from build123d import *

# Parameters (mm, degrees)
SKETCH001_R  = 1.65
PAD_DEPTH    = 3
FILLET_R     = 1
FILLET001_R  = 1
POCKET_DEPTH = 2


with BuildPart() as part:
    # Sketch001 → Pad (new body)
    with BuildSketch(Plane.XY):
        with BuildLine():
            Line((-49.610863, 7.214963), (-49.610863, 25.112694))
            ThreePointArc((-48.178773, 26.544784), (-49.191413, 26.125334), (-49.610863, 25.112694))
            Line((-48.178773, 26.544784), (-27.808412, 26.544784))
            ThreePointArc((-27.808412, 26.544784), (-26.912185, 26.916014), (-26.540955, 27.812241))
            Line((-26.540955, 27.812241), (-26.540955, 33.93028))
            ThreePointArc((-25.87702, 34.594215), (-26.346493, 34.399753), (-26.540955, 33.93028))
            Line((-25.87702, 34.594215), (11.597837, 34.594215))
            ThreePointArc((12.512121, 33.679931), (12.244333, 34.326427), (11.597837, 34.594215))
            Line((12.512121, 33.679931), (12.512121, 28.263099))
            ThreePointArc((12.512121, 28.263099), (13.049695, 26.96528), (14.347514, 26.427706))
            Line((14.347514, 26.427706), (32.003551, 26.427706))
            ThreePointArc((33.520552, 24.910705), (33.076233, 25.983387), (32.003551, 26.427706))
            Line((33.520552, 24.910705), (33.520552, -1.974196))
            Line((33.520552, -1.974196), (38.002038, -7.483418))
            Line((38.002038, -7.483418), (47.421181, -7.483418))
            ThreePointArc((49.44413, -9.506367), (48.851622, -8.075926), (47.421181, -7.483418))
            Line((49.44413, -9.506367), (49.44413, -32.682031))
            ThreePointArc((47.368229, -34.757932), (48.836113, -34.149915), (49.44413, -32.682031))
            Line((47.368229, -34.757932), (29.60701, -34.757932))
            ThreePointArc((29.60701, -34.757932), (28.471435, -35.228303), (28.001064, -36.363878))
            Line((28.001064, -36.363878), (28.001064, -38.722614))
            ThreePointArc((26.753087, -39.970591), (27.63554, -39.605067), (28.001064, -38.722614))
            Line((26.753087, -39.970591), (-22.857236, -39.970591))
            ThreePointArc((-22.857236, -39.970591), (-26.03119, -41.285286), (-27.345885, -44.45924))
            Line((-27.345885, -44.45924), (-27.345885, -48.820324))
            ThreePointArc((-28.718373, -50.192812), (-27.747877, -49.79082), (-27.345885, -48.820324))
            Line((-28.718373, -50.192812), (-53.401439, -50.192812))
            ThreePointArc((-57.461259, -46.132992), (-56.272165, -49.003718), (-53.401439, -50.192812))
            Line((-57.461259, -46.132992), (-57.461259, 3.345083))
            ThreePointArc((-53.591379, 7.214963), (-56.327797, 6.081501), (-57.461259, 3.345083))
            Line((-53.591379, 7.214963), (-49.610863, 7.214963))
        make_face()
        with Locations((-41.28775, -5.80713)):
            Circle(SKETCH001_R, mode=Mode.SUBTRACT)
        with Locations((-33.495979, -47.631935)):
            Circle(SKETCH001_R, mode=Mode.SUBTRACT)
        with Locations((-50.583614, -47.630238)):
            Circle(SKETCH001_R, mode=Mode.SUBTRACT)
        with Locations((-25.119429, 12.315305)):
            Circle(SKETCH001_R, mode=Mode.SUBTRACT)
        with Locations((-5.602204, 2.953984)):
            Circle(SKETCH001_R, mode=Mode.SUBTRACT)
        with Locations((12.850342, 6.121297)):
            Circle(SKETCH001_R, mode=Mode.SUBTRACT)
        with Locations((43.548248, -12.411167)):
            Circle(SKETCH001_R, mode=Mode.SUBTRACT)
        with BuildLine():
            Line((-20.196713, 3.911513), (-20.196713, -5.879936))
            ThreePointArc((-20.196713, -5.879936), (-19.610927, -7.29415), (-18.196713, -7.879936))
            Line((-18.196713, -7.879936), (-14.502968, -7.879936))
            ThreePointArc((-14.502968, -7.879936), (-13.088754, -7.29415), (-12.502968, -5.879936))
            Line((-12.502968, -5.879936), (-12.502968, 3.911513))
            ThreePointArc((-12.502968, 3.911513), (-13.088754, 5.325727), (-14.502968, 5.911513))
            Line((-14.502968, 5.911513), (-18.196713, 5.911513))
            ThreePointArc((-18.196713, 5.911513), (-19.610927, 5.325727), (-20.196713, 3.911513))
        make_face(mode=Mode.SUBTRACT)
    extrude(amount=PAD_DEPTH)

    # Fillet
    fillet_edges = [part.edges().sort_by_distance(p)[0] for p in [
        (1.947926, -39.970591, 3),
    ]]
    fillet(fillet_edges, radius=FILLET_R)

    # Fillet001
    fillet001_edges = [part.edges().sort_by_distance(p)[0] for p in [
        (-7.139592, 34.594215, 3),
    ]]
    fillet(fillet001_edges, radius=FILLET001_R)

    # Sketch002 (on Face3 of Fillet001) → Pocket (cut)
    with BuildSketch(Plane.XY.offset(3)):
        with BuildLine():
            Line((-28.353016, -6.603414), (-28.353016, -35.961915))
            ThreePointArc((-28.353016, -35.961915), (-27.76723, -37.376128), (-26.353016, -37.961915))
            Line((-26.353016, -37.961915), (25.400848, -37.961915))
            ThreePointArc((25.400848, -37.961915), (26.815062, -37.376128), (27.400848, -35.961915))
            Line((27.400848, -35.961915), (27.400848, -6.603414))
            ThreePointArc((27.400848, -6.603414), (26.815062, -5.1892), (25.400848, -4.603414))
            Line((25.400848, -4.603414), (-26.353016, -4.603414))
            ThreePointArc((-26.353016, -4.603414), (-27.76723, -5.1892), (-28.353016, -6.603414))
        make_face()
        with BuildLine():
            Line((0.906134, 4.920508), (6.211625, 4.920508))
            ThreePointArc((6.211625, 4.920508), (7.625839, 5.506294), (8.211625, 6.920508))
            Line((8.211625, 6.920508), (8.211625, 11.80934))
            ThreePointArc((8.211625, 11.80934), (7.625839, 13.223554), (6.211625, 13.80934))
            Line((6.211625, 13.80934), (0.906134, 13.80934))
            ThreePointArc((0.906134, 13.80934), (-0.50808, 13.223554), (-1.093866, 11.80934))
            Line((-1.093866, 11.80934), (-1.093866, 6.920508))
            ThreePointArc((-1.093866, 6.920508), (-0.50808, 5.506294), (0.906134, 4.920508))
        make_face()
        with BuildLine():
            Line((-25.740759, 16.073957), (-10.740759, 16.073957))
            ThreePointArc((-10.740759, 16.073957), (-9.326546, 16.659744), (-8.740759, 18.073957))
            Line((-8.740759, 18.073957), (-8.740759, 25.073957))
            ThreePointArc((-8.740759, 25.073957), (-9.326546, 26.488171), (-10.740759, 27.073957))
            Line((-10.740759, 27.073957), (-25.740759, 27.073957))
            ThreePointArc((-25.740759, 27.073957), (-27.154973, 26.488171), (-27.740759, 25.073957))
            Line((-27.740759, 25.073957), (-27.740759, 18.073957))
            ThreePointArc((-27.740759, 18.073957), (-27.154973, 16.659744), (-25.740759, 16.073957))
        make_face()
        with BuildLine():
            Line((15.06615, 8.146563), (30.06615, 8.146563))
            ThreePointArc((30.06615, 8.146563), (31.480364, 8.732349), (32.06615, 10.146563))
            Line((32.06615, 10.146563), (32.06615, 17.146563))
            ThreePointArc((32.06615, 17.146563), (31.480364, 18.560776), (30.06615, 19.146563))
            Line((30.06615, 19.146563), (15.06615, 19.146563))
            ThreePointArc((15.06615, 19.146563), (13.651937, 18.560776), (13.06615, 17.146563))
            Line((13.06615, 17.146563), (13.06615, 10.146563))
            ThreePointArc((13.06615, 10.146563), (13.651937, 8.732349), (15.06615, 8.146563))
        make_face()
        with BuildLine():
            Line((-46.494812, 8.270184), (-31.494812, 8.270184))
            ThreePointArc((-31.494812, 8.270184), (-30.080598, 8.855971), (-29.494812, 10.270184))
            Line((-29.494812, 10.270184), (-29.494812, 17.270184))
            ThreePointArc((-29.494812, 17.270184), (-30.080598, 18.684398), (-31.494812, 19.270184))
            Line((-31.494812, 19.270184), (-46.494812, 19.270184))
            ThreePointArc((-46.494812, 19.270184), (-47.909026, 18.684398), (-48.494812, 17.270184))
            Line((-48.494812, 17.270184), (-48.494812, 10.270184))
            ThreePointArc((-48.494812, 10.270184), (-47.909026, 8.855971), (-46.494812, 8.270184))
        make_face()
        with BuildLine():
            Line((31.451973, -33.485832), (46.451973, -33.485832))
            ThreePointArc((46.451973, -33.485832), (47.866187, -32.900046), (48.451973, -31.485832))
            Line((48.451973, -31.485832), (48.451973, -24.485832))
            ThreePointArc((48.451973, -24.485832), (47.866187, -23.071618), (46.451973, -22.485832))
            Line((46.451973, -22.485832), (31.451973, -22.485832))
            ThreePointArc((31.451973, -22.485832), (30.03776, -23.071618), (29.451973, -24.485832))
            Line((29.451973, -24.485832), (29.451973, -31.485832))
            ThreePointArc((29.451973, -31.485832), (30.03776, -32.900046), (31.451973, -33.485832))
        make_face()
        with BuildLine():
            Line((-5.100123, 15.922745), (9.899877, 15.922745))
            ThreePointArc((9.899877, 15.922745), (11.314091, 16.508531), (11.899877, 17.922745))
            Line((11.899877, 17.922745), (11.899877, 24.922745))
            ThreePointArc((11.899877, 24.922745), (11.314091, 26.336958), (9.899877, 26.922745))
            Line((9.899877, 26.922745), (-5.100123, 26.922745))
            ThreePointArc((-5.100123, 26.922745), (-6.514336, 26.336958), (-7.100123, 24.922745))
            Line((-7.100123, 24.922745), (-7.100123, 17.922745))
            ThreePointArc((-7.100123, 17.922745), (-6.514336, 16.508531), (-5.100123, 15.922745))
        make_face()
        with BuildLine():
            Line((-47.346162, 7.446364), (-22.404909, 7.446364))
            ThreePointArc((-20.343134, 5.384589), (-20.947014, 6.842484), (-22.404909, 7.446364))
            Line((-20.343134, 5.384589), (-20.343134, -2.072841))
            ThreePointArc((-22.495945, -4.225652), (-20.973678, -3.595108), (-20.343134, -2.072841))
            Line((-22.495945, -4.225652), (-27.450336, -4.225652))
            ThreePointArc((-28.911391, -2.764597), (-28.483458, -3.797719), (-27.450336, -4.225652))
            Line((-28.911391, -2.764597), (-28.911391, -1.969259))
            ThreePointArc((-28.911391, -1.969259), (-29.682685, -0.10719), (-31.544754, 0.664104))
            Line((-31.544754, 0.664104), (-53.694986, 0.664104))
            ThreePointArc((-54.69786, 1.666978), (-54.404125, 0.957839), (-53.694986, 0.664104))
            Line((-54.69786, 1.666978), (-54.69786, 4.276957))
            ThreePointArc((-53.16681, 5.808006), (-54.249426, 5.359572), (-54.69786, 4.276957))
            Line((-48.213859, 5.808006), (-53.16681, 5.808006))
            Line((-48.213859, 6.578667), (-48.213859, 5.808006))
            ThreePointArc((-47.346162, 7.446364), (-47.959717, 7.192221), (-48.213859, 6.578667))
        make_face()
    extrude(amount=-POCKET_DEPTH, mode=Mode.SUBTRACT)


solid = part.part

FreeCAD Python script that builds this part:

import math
import FreeCAD as App
import Part
import Sketcher
Q = App.Units.Quantity


def edges_at(feature, points):
    """Names of the edges that pass closest to the given points."""
    edges = feature.Shape.Edges
    near = lambda p: min(range(len(edges)), key=lambda i: edges[i].distToShape(Part.Vertex(*p))[0])
    return sorted({f"Edge{near(p) + 1}" for p in points})

doc = App.newDocument("Part")
body = doc.addObject("PartDesign::Body", "Body")

# Sketch on XY plane
sketch1 = body.newObject("Sketcher::SketchObject", "Sketch")
sketch1.AttachmentSupport = (doc.getObject("XY_Plane"), [""])
sketch1.MapMode = "FlatFace"
sketch1.addGeometry([
    Part.LineSegment(App.Vector(-49.610863, 25.112694, 0), App.Vector(-49.610863, 7.214963, 0)),  # 0
    Part.LineSegment(App.Vector(-49.610863, 7.214963, 0), App.Vector(-53.591379, 7.214963, 0)),  # 1
    Part.ArcOfCircle(Part.Circle(App.Vector(-53.591378, 3.345082, 0), App.Vector(0, 0, 1), 3.869881), math.radians(90.00002), math.radians(179.99998)),  # 2
    Part.LineSegment(App.Vector(-57.461259, 3.345083, 0), App.Vector(-57.461259, -46.132992, 0)),  # 3
    Part.ArcOfCircle(Part.Circle(App.Vector(-53.401438, -46.132991, 0), App.Vector(0, 0, 1), 4.059821), math.radians(-179.999988), math.radians(-90.000012)),  # 4
    Part.LineSegment(App.Vector(-53.401439, -50.192812, 0), App.Vector(-28.718373, -50.192812, 0)),  # 5
    Part.ArcOfCircle(Part.Circle(App.Vector(-28.718372, -48.820325, 0), App.Vector(0, 0, 1), 1.372487), math.radians(-90.000061), math.radians(0.000061)),  # 6
    Part.LineSegment(App.Vector(-27.345885, -48.820324, 0), App.Vector(-27.345885, -44.45924, 0)),  # 7
    Part.ArcOfCircle(Part.Circle(App.Vector(-22.857236, -44.45924, 0), App.Vector(0, 0, 1), 4.488649), math.radians(90.000006), math.radians(179.999994)),  # 8
    Part.LineSegment(App.Vector(-22.857236, -39.970591, 0), App.Vector(26.753087, -39.970591, 0)),  # 9
    Part.ArcOfCircle(Part.Circle(App.Vector(26.753087, -38.722614, 0), App.Vector(0, 0, 1), 1.247977), math.radians(-90), math.radians(0)),  # 10
    Part.LineSegment(App.Vector(28.001064, -38.722614, 0), App.Vector(28.001064, -36.363878, 0)),  # 11
    Part.ArcOfCircle(Part.Circle(App.Vector(29.607011, -36.363879, 0), App.Vector(0, 0, 1), 1.605947), math.radians(90.000037), math.radians(179.999963)),  # 12
    Part.LineSegment(App.Vector(29.60701, -34.757932, 0), App.Vector(47.368229, -34.757932, 0)),  # 13
    Part.ArcOfCircle(Part.Circle(App.Vector(47.36823, -32.682032, 0), App.Vector(0, 0, 1), 2.0759), math.radians(-90.000031), math.radians(0.000031)),  # 14
    Part.LineSegment(App.Vector(49.44413, -32.682031, 0), App.Vector(49.44413, -9.506367, 0)),  # 15
    Part.ArcOfCircle(Part.Circle(App.Vector(47.421181, -9.506367, 0), App.Vector(0, 0, 1), 2.022949), math.radians(-0.000004), math.radians(90.000004)),  # 16
    Part.LineSegment(App.Vector(47.421181, -7.483418, 0), App.Vector(38.002038, -7.483418, 0)),  # 17
    Part.LineSegment(App.Vector(38.002038, -7.483418, 0), App.Vector(33.520552, -1.974196, 0)),  # 18
    Part.LineSegment(App.Vector(33.520552, -1.974196, 0), App.Vector(33.520552, 24.910705, 0)),  # 19
    Part.ArcOfCircle(Part.Circle(App.Vector(32.003552, 24.910706, 0), App.Vector(0, 0, 1), 1.517), math.radians(-0.000039), math.radians(90.000039)),  # 20
    Part.LineSegment(App.Vector(32.003551, 26.427706, 0), App.Vector(14.347514, 26.427706, 0)),  # 21
    Part.ArcOfCircle(Part.Circle(App.Vector(14.347513, 28.263098, 0), App.Vector(0, 0, 1), 1.835392), math.radians(179.999983), math.radians(270.000017)),  # 22
    Part.LineSegment(App.Vector(12.512121, 28.263099, 0), App.Vector(12.512121, 33.679931, 0)),  # 23
    Part.ArcOfCircle(Part.Circle(App.Vector(11.597836, 33.67993, 0), App.Vector(0, 0, 1), 0.914285), math.radians(0.000089), math.radians(89.999911)),  # 24
    Part.LineSegment(App.Vector(11.597837, 34.594215, 0), App.Vector(-25.87702, 34.594215, 0)),  # 25
    Part.ArcOfCircle(Part.Circle(App.Vector(-25.87702, 33.93028, 0), App.Vector(0, 0, 1), 0.663935), math.radians(89.999983), math.radians(180.000017)),  # 26
    Part.LineSegment(App.Vector(-26.540955, 33.93028, 0), App.Vector(-26.540955, 27.812241, 0)),  # 27
    Part.ArcOfCircle(Part.Circle(App.Vector(-27.808414, 27.812243, 0), App.Vector(0, 0, 1), 1.267459), math.radians(-89.999932), math.radians(-0.000068)),  # 28
    Part.LineSegment(App.Vector(-27.808412, 26.544784, 0), App.Vector(-48.178773, 26.544784, 0)),  # 29
    Part.ArcOfCircle(Part.Circle(App.Vector(-48.178771, 25.112692, 0), App.Vector(0, 0, 1), 1.432092), math.radians(90.000075), math.radians(179.999925)),  # 30
    Part.Circle(App.Vector(-33.495979, -47.631935, 0), App.Vector(0, 0, 1), 1.65),  # 31
    Part.Circle(App.Vector(-50.583614, -47.630238, 0), App.Vector(0, 0, 1), 1.65),  # 32
    Part.Circle(App.Vector(43.548248, -12.411167, 0), App.Vector(0, 0, 1), 1.65),  # 33
    Part.Circle(App.Vector(12.850342, 6.121297, 0), App.Vector(0, 0, 1), 1.65),  # 34
    Part.Circle(App.Vector(-41.28775, -5.80713, 0), App.Vector(0, 0, 1), 1.65),  # 35
    Part.Circle(App.Vector(-5.602204, 2.953984, 0), App.Vector(0, 0, 1), 1.65),  # 36
    Part.ArcOfCircle(Part.Circle(App.Vector(-18.196714, 3.911514, 0), App.Vector(0, 0, 1), 1.999999), math.radians(89.999957), math.radians(180.000043)),  # 37
    Part.LineSegment(App.Vector(-18.196713, 5.911513, 0), App.Vector(-14.502968, 5.911513, 0)),  # 38
    Part.ArcOfCircle(Part.Circle(App.Vector(-14.502967, 3.911514, 0), App.Vector(0, 0, 1), 1.999999), math.radians(-0.000043), math.radians(90.000043)),  # 39
    Part.LineSegment(App.Vector(-12.502968, 3.911513, 0), App.Vector(-12.502968, -5.879936, 0)),  # 40
    Part.ArcOfCircle(Part.Circle(App.Vector(-14.502967, -5.879937, 0), App.Vector(0, 0, 1), 1.999999), math.radians(-90.000043), math.radians(0.000043)),  # 41
    Part.LineSegment(App.Vector(-14.502968, -7.879936, 0), App.Vector(-18.196713, -7.879936, 0)),  # 42
    Part.ArcOfCircle(Part.Circle(App.Vector(-18.196714, -5.879937, 0), App.Vector(0, 0, 1), 1.999999), math.radians(179.999957), math.radians(270.000043)),  # 43
    Part.LineSegment(App.Vector(-20.196713, -5.879936, 0), App.Vector(-20.196713, 3.911513, 0)),  # 44
    Part.Circle(App.Vector(-25.119429, 12.315305, 0), App.Vector(0, 0, 1), 1.65),  # 45
], False)
sketch1.addConstraint([
    Sketcher.Constraint("Coincident", 0, 2, 1, 1),
    Sketcher.Constraint("Tangent", 1, 2, 2, 1),
    Sketcher.Constraint("Tangent", 2, 2, 3, 1),
    Sketcher.Constraint("Tangent", 3, 2, 4, 1),
    Sketcher.Constraint("Tangent", 4, 2, 5, 1),
    Sketcher.Constraint("Tangent", 5, 2, 6, 1),
    Sketcher.Constraint("Tangent", 6, 2, 7, 1),
    Sketcher.Constraint("Tangent", 7, 2, 8, 2),
    Sketcher.Constraint("Tangent", 8, 1, 9, 1),
    Sketcher.Constraint("Tangent", 9, 2, 10, 1),
    Sketcher.Constraint("Tangent", 10, 2, 11, 1),
    Sketcher.Constraint("Tangent", 11, 2, 12, 2),
    Sketcher.Constraint("Tangent", 12, 1, 13, 1),
    Sketcher.Constraint("Tangent", 13, 2, 14, 1),
    Sketcher.Constraint("Tangent", 14, 2, 15, 1),
    Sketcher.Constraint("Tangent", 15, 2, 16, 1),
    Sketcher.Constraint("Tangent", 16, 2, 17, 1),
    Sketcher.Constraint("Coincident", 17, 2, 18, 1),
    Sketcher.Constraint("Coincident", 18, 2, 19, 1),
    Sketcher.Constraint("Tangent", 19, 2, 20, 1),
    Sketcher.Constraint("Tangent", 20, 2, 21, 1),
    Sketcher.Constraint("Tangent", 21, 2, 22, 2),
    Sketcher.Constraint("Tangent", 22, 1, 23, 1),
    Sketcher.Constraint("Tangent", 23, 2, 24, 1),
    Sketcher.Constraint("Tangent", 24, 2, 25, 1),
    Sketcher.Constraint("Tangent", 25, 2, 26, 1),
    Sketcher.Constraint("Tangent", 26, 2, 27, 1),
    Sketcher.Constraint("Tangent", 27, 2, 28, 2),
    Sketcher.Constraint("Tangent", 28, 1, 29, 1),
    Sketcher.Constraint("Tangent", 29, 2, 30, 1),
    Sketcher.Constraint("Tangent", 30, 2, 0, 1),
    Sketcher.Constraint("Tangent", 37, 1, 38, 1),
    Sketcher.Constraint("Tangent", 38, 2, 39, 2),
    Sketcher.Constraint("Tangent", 39, 1, 40, 1),
    Sketcher.Constraint("Tangent", 40, 2, 41, 2),
    Sketcher.Constraint("Tangent", 41, 1, 42, 1),
    Sketcher.Constraint("Tangent", 42, 2, 43, 2),
    Sketcher.Constraint("Tangent", 43, 1, 44, 1),
    Sketcher.Constraint("Tangent", 44, 2, 37, 2),
    Sketcher.Constraint("Vertical", 0),
    Sketcher.Constraint("Horizontal", 1),
    Sketcher.Constraint("Vertical", 3),
    Sketcher.Constraint("Horizontal", 5),
    Sketcher.Constraint("Vertical", 7),
    Sketcher.Constraint("Horizontal", 9),
    Sketcher.Constraint("Vertical", 11),
    Sketcher.Constraint("Horizontal", 13),
    Sketcher.Constraint("Vertical", 15),
    Sketcher.Constraint("Horizontal", 17),
    Sketcher.Constraint("Vertical", 19),
    Sketcher.Constraint("Horizontal", 21),
    Sketcher.Constraint("Vertical", 23),
    Sketcher.Constraint("Horizontal", 25),
    Sketcher.Constraint("Vertical", 27),
    Sketcher.Constraint("Horizontal", 29),
    Sketcher.Constraint("Horizontal", 38),
    Sketcher.Constraint("Vertical", 40),
    Sketcher.Constraint("Horizontal", 42),
    Sketcher.Constraint("Vertical", 44),
    Sketcher.Constraint("Equal", 31, 32),
    Sketcher.Constraint("Equal", 32, 33),
    Sketcher.Constraint("Equal", 33, 34),
    Sketcher.Constraint("Equal", 34, 35),
    Sketcher.Constraint("Equal", 35, 36),
    Sketcher.Constraint("Equal", 37, 39),
    Sketcher.Constraint("Equal", 39, 41),
    Sketcher.Constraint("Equal", 41, 43),
    Sketcher.Constraint("Equal", 36, 45),
    Sketcher.Constraint("Radius", 37, Q("1.999999 mm")),
    Sketcher.Constraint("Diameter", 31, Q("3.3 mm")),
    Sketcher.Constraint("Radius", 20, Q("1.517 mm")),
    Sketcher.Constraint("Radius", 14, Q("2.0759 mm")),
    Sketcher.Constraint("Radius", 2, Q("3.869881 mm")),
    Sketcher.Constraint("Radius", 4, Q("4.059821 mm")),
    Sketcher.Constraint("Radius", 8, Q("4.488649 mm")),
    Sketcher.Constraint("Radius", 16, Q("2.022949 mm")),
    Sketcher.Constraint("Radius", 28, Q("1.267459 mm")),
    Sketcher.Constraint("Radius", 30, Q("1.432092 mm")),
    Sketcher.Constraint("DistanceY", 19, 1, 19, 2, Q("26.884901 mm")),
    Sketcher.Constraint("Radius", 6, Q("1.372487 mm")),
    Sketcher.Constraint("Radius", 10, Q("1.247977 mm")),
    Sketcher.Constraint("Radius", 12, Q("1.605947 mm")),
    Sketcher.Constraint("Radius", 22, Q("1.835392 mm")),
    Sketcher.Constraint("Radius", 24, Q("0.914285 mm")),
    Sketcher.Constraint("Radius", 26, Q("0.663935 mm")),
    Sketcher.Constraint("DistanceX", 13, 1, 13, 2, Q("17.761219 mm")),
    Sketcher.Constraint("DistanceX", 29, 2, 29, 1, Q("20.370361 mm")),
    Sketcher.Constraint("DistanceY", 0, 2, 0, 1, Q("17.897731 mm")),
    Sketcher.Constraint("DistanceY", 27, 2, 27, 1, Q("6.118039 mm")),
    Sketcher.Constraint("DistanceY", 40, 2, 40, 1, Q("9.791449 mm")),
    Sketcher.Constraint("DistanceY", -1, 1, 22, 3, Q("28.263098 mm")),
    Sketcher.Constraint("DistanceX", 1, 2, 1, 1, Q("3.980516 mm")),
    Sketcher.Constraint("DistanceX", 5, 1, 5, 2, Q("24.683066 mm")),
    Sketcher.Constraint("DistanceX", 9, 1, 9, 2, Q("49.610323 mm")),
    Sketcher.Constraint("DistanceX", 17, 2, 17, 1, Q("9.419143 mm")),
    Sketcher.Constraint("DistanceX", 21, 2, 21, 1, Q("17.656037 mm")),
    Sketcher.Constraint("DistanceX", 25, 2, 25, 1, Q("37.474857 mm")),
    Sketcher.Constraint("DistanceX", 38, 1, 38, 2, Q("3.693745 mm")),
    Sketcher.Constraint("DistanceY", 3, 2, 3, 1, Q("49.478075 mm")),
    Sketcher.Constraint("DistanceY", 7, 1, 7, 2, Q("4.361084 mm")),
    Sketcher.Constraint("DistanceY", 11, 1, 11, 2, Q("2.358736 mm")),
    Sketcher.Constraint("DistanceY", 15, 1, 15, 2, Q("23.175664 mm")),
    Sketcher.Constraint("DistanceY", 23, 1, 23, 2, Q("5.416832 mm")),
    Sketcher.Constraint("DistanceX", 4, 3, -1, 1, Q("53.401438 mm")),
    Sketcher.Constraint("DistanceX", 31, 3, -1, 1, Q("33.495979 mm")),
    Sketcher.Constraint("DistanceX", 35, 3, -1, 1, Q("41.28775 mm")),
    Sketcher.Constraint("DistanceY", 35, 3, -1, 1, Q("5.80713 mm")),
    Sketcher.Constraint("DistanceX", 45, 3, -1, 1, Q("25.119429 mm")),
    Sketcher.Constraint("DistanceX", 39, 1, -1, 1, Q("12.502968 mm")),
    Sketcher.Constraint("DistanceY", 31, 3, -1, 1, Q("47.631935 mm")),
    Sketcher.Constraint("DistanceX", 32, 3, -1, 1, Q("50.583614 mm")),
    Sketcher.Constraint("DistanceY", 32, 3, -1, 1, Q("47.630238 mm")),
    Sketcher.Constraint("DistanceX", -1, 1, 33, 3, Q("43.548248 mm")),
    Sketcher.Constraint("DistanceY", 33, 3, -1, 1, Q("12.411167 mm")),
    Sketcher.Constraint("DistanceX", -1, 1, 34, 3, Q("12.850342 mm")),
    Sketcher.Constraint("DistanceY", -1, 1, 34, 3, Q("6.121297 mm")),
    Sketcher.Constraint("DistanceX", 36, 3, -1, 1, Q("5.602204 mm")),
    Sketcher.Constraint("DistanceY", -1, 1, 36, 3, Q("2.953984 mm")),
    Sketcher.Constraint("DistanceY", -1, 1, 37, 3, Q("3.911514 mm")),
    Sketcher.Constraint("DistanceY", -1, 1, 45, 3, Q("12.315305 mm")),
])
pad1 = body.newObject("PartDesign::Pad", "Pad")
pad1.Profile = sketch1
pad1.Length = 3
doc.recompute()

fillet = body.newObject("PartDesign::Fillet", "Fillet")
fillet.Base = (pad1, edges_at(pad1, [(1.948, -39.971, 3)]))
fillet.Radius = 1
doc.recompute()

fillet2 = body.newObject("PartDesign::Fillet", "Fillet001")
fillet2.Base = (fillet, edges_at(fillet, [(-7.14, 34.594, 3)]))
fillet2.Radius = 1

# Sketch on XY plane
sketch2 = body.newObject("Sketcher::SketchObject", "Sketch001")
sketch2.AttachmentSupport = (doc.getObject("XY_Plane"), [""])
sketch2.MapMode = "FlatFace"
sketch2.AttachmentOffset = App.Placement(App.Vector(0, 0, 3), App.Rotation())
sketch2.addGeometry([
    Part.LineSegment(App.Vector(-28.353016, -6.603414, 0), App.Vector(-28.353016, -35.961915, 0)),  # 0
    Part.ArcOfCircle(Part.Circle(App.Vector(-26.353016, -35.961915, 0), App.Vector(0, 0, 1), 2), math.radians(-179.999994), math.radians(-90.000006)),  # 1
    Part.LineSegment(App.Vector(-26.353016, -37.961915, 0), App.Vector(25.400848, -37.961915, 0)),  # 2
    Part.ArcOfCircle(Part.Circle(App.Vector(25.400848, -35.961915, 0), App.Vector(0, 0, 1), 2), math.radians(-89.999994), math.radians(-0.000006)),  # 3
    Part.LineSegment(App.Vector(27.400848, -35.961915, 0), App.Vector(27.400848, -6.603414, 0)),  # 4
    Part.ArcOfCircle(Part.Circle(App.Vector(25.400849, -6.603413, 0), App.Vector(0, 0, 1), 1.999999), math.radians(-0.000043), math.radians(90.000043)),  # 5
    Part.LineSegment(App.Vector(25.400848, -4.603414, 0), App.Vector(-26.353016, -4.603414, 0)),  # 6
    Part.ArcOfCircle(Part.Circle(App.Vector(-26.353017, -6.603413, 0), App.Vector(0, 0, 1), 1.999999), math.radians(89.999957), math.radians(180.000043)),  # 7
    Part.LineSegment(App.Vector(0.906134, 4.920508, 0), App.Vector(6.211625, 4.920508, 0)),  # 8
    Part.ArcOfCircle(Part.Circle(App.Vector(6.211626, 6.920507, 0), App.Vector(0, 0, 1), 1.999999), math.radians(-90.000043), math.radians(0.000043)),  # 9
    Part.LineSegment(App.Vector(8.211625, 6.920508, 0), App.Vector(8.211625, 11.80934, 0)),  # 10
    Part.ArcOfCircle(Part.Circle(App.Vector(6.211626, 11.809341, 0), App.Vector(0, 0, 1), 1.999999), math.radians(-0.000043), math.radians(90.000043)),  # 11
    Part.LineSegment(App.Vector(6.211625, 13.80934, 0), App.Vector(0.906134, 13.80934, 0)),  # 12
    Part.ArcOfCircle(Part.Circle(App.Vector(0.906133, 11.809341, 0), App.Vector(0, 0, 1), 1.999999), math.radians(89.999957), math.radians(180.000043)),  # 13
    Part.LineSegment(App.Vector(-1.093866, 11.80934, 0), App.Vector(-1.093866, 6.920508, 0)),  # 14
    Part.ArcOfCircle(Part.Circle(App.Vector(0.906133, 6.920507, 0), App.Vector(0, 0, 1), 1.999999), math.radians(179.999957), math.radians(270.000043)),  # 15
    Part.LineSegment(App.Vector(-25.740759, 16.073957, 0), App.Vector(-10.740759, 16.073957, 0)),  # 16
    Part.ArcOfCircle(Part.Circle(App.Vector(-10.740761, 18.073959, 0), App.Vector(0, 0, 1), 2.000002), math.radians(-89.999945), math.radians(-0.000055)),  # 17
    Part.LineSegment(App.Vector(-8.740759, 18.073957, 0), App.Vector(-8.740759, 25.073957, 0)),  # 18
    Part.ArcOfCircle(Part.Circle(App.Vector(-10.740759, 25.073957, 0), App.Vector(0, 0, 1), 2), math.radians(0.000006), math.radians(89.999994)),  # 19
    Part.LineSegment(App.Vector(-10.740759, 27.073957, 0), App.Vector(-25.740759, 27.073957, 0)),  # 20
    Part.ArcOfCircle(Part.Circle(App.Vector(-25.74076, 25.073958, 0), App.Vector(0, 0, 1), 1.999999), math.radians(89.999957), math.radians(180.000043)),  # 21
    Part.LineSegment(App.Vector(-27.740759, 25.073957, 0), App.Vector(-27.740759, 18.073957, 0)),  # 22
    Part.ArcOfCircle(Part.Circle(App.Vector(-25.740759, 18.073957, 0), App.Vector(0, 0, 1), 2), math.radians(-179.999994), math.radians(-90.000006)),  # 23
    Part.LineSegment(App.Vector(15.06615, 8.146563, 0), App.Vector(30.06615, 8.146563, 0)),  # 24
    Part.ArcOfCircle(Part.Circle(App.Vector(30.066151, 10.146562, 0), App.Vector(0, 0, 1), 1.999999), math.radians(-90.000043), math.radians(0.000043)),  # 25
    Part.LineSegment(App.Vector(32.06615, 10.146563, 0), App.Vector(32.06615, 17.146563, 0)),  # 26
    Part.ArcOfCircle(Part.Circle(App.Vector(30.06615, 17.146563, 0), App.Vector(0, 0, 1), 2), math.radians(0.000006), math.radians(89.999994)),  # 27
    Part.LineSegment(App.Vector(30.06615, 19.146563, 0), App.Vector(15.06615, 19.146563, 0)),  # 28
    Part.ArcOfCircle(Part.Circle(App.Vector(15.066152, 17.146561, 0), App.Vector(0, 0, 1), 2.000002), math.radians(90.000055), math.radians(179.999945)),  # 29
    Part.LineSegment(App.Vector(13.06615, 17.146563, 0), App.Vector(13.06615, 10.146563, 0)),  # 30
    Part.ArcOfCircle(Part.Circle(App.Vector(15.06615, 10.146563, 0), App.Vector(0, 0, 1), 2), math.radians(-179.999994), math.radians(-90.000006)),  # 31
    Part.LineSegment(App.Vector(-46.494812, 8.270184, 0), App.Vector(-31.494812, 8.270184, 0)),  # 32
    Part.ArcOfCircle(Part.Circle(App.Vector(-31.494812, 10.270184, 0), App.Vector(0, 0, 1), 2), math.radians(-89.999994), math.radians(-0.000006)),  # 33
    Part.LineSegment(App.Vector(-29.494812, 10.270184, 0), App.Vector(-29.494812, 17.270184, 0)),  # 34
    Part.ArcOfCircle(Part.Circle(App.Vector(-31.494811, 17.270185, 0), App.Vector(0, 0, 1), 1.999999), math.radians(-0.000043), math.radians(90.000043)),  # 35
    Part.LineSegment(App.Vector(-31.494812, 19.270184, 0), App.Vector(-46.494812, 19.270184, 0)),  # 36
    Part.ArcOfCircle(Part.Circle(App.Vector(-46.494813, 17.270185, 0), App.Vector(0, 0, 1), 1.999999), math.radians(89.999957), math.radians(180.000043)),  # 37
    Part.LineSegment(App.Vector(-48.494812, 17.270184, 0), App.Vector(-48.494812, 10.270184, 0)),  # 38
    Part.ArcOfCircle(Part.Circle(App.Vector(-46.494812, 10.270184, 0), App.Vector(0, 0, 1), 2), math.radians(-179.999994), math.radians(-90.000006)),  # 39
    Part.LineSegment(App.Vector(31.451973, -33.485832, 0), App.Vector(46.451973, -33.485832, 0)),  # 40
    Part.ArcOfCircle(Part.Circle(App.Vector(46.451974, -31.485833, 0), App.Vector(0, 0, 1), 1.999999), math.radians(-90.000043), math.radians(0.000043)),  # 41
    Part.LineSegment(App.Vector(48.451973, -31.485832, 0), App.Vector(48.451973, -24.485832, 0)),  # 42
    Part.ArcOfCircle(Part.Circle(App.Vector(46.451974, -24.485831, 0), App.Vector(0, 0, 1), 1.999999), math.radians(-0.000043), math.radians(90.000043)),  # 43
    Part.LineSegment(App.Vector(46.451973, -22.485832, 0), App.Vector(31.451973, -22.485832, 0)),  # 44
    Part.ArcOfCircle(Part.Circle(App.Vector(31.451973, -24.485832, 0), App.Vector(0, 0, 1), 2), math.radians(90.000006), math.radians(179.999994)),  # 45
    Part.LineSegment(App.Vector(29.451973, -24.485832, 0), App.Vector(29.451973, -31.485832, 0)),  # 46
    Part.ArcOfCircle(Part.Circle(App.Vector(31.451973, -31.485832, 0), App.Vector(0, 0, 1), 2), math.radians(-179.999994), math.radians(-90.000006)),  # 47
    Part.LineSegment(App.Vector(-5.100123, 15.922745, 0), App.Vector(9.899877, 15.922745, 0)),  # 48
    Part.ArcOfCircle(Part.Circle(App.Vector(9.899878, 17.922744, 0), App.Vector(0, 0, 1), 1.999999), math.radians(-90.000043), math.radians(0.000043)),  # 49
    Part.LineSegment(App.Vector(11.899877, 17.922745, 0), App.Vector(11.899877, 24.922745, 0)),  # 50
    Part.ArcOfCircle(Part.Circle(App.Vector(9.899877, 24.922745, 0), App.Vector(0, 0, 1), 2), math.radians(0.000006), math.radians(89.999994)),  # 51
    Part.LineSegment(App.Vector(9.899877, 26.922745, 0), App.Vector(-5.100123, 26.922745, 0)),  # 52
    Part.ArcOfCircle(Part.Circle(App.Vector(-5.100121, 24.922743, 0), App.Vector(0, 0, 1), 2.000002), math.radians(90.000055), math.radians(179.999945)),  # 53
    Part.LineSegment(App.Vector(-7.100123, 24.922745, 0), App.Vector(-7.100123, 17.922745, 0)),  # 54
    Part.ArcOfCircle(Part.Circle(App.Vector(-5.100123, 17.922745, 0), App.Vector(0, 0, 1), 2), math.radians(-179.999994), math.radians(-90.000006)),  # 55
    Part.LineSegment(App.Vector(-22.404909, 7.446364, 0), App.Vector(-47.346162, 7.446364, 0)),  # 56
    Part.ArcOfCircle(Part.Circle(App.Vector(-47.346162, 6.578667, 0), App.Vector(0, 0, 1), 0.867697), math.radians(89.999985), math.radians(180.000015)),  # 57
    Part.LineSegment(App.Vector(-48.213859, 6.578667, 0), App.Vector(-48.213859, 5.808006, 0)),  # 58
    Part.LineSegment(App.Vector(-48.213859, 5.808006, 0), App.Vector(-53.16681, 5.808006, 0)),  # 59
    Part.ArcOfCircle(Part.Circle(App.Vector(-53.166811, 4.276957, 0), App.Vector(0, 0, 1), 1.531049), math.radians(89.999979), math.radians(179.999983)),  # 60
    Part.LineSegment(App.Vector(-54.69786, 4.276957, 0), App.Vector(-54.69786, 1.666978, 0)),  # 61
    Part.ArcOfCircle(Part.Circle(App.Vector(-53.694986, 1.666978, 0), App.Vector(0, 0, 1), 1.002874), math.radians(-179.999999), math.radians(-90.000001)),  # 62
    Part.LineSegment(App.Vector(-53.694986, 0.664104, 0), App.Vector(-31.544754, 0.664104, 0)),  # 63
    Part.ArcOfCircle(Part.Circle(App.Vector(-31.544753, -1.969258, 0), App.Vector(0, 0, 1), 2.633362), math.radians(-0.000012), math.radians(90.000012)),  # 64
    Part.LineSegment(App.Vector(-28.911391, -1.969259, 0), App.Vector(-28.911391, -2.764597, 0)),  # 65
    Part.ArcOfCircle(Part.Circle(App.Vector(-27.450336, -2.764597, 0), App.Vector(0, 0, 1), 1.461055), math.radians(179.999986), math.radians(270.000014)),  # 66
    Part.LineSegment(App.Vector(-27.450336, -4.225652, 0), App.Vector(-22.495945, -4.225652, 0)),  # 67
    Part.ArcOfCircle(Part.Circle(App.Vector(-22.495946, -2.07284, 0), App.Vector(0, 0, 1), 2.152812), math.radians(-89.999977), math.radians(-0.000023)),  # 68
    Part.LineSegment(App.Vector(-20.343134, -2.072841, 0), App.Vector(-20.343134, 5.384589, 0)),  # 69
    Part.ArcOfCircle(Part.Circle(App.Vector(-22.404909, 5.384589, 0), App.Vector(0, 0, 1), 2.061775), math.radians(0.000008), math.radians(89.999992)),  # 70
], False)
sketch2.addConstraint([
    Sketcher.Constraint("Tangent", 0, 2, 1, 1),
    Sketcher.Constraint("Tangent", 1, 2, 2, 1),
    Sketcher.Constraint("Tangent", 2, 2, 3, 1),
    Sketcher.Constraint("Tangent", 3, 2, 4, 1),
    Sketcher.Constraint("Tangent", 4, 2, 5, 1),
    Sketcher.Constraint("Tangent", 5, 2, 6, 1),
    Sketcher.Constraint("Tangent", 6, 2, 7, 1),
    Sketcher.Constraint("Tangent", 7, 2, 0, 1),
    Sketcher.Constraint("Tangent", 8, 2, 9, 1),
    Sketcher.Constraint("Tangent", 9, 2, 10, 1),
    Sketcher.Constraint("Tangent", 10, 2, 11, 1),
    Sketcher.Constraint("Tangent", 11, 2, 12, 1),
    Sketcher.Constraint("Tangent", 12, 2, 13, 1),
    Sketcher.Constraint("Tangent", 13, 2, 14, 1),
    Sketcher.Constraint("Tangent", 14, 2, 15, 1),
    Sketcher.Constraint("Tangent", 15, 2, 8, 1),
    Sketcher.Constraint("Tangent", 16, 2, 17, 1),
    Sketcher.Constraint("Tangent", 17, 2, 18, 1),
    Sketcher.Constraint("Tangent", 18, 2, 19, 1),
    Sketcher.Constraint("Tangent", 19, 2, 20, 1),
    Sketcher.Constraint("Tangent", 20, 2, 21, 1),
    Sketcher.Constraint("Tangent", 21, 2, 22, 1),
    Sketcher.Constraint("Tangent", 22, 2, 23, 1),
    Sketcher.Constraint("Tangent", 23, 2, 16, 1),
    Sketcher.Constraint("Tangent", 24, 2, 25, 1),
    Sketcher.Constraint("Tangent", 25, 2, 26, 1),
    Sketcher.Constraint("Tangent", 26, 2, 27, 1),
    Sketcher.Constraint("Tangent", 27, 2, 28, 1),
    Sketcher.Constraint("Tangent", 28, 2, 29, 1),
    Sketcher.Constraint("Tangent", 29, 2, 30, 1),
    Sketcher.Constraint("Tangent", 30, 2, 31, 1),
    Sketcher.Constraint("Tangent", 31, 2, 24, 1),
    Sketcher.Constraint("Tangent", 32, 2, 33, 1),
    Sketcher.Constraint("Tangent", 33, 2, 34, 1),
    Sketcher.Constraint("Tangent", 34, 2, 35, 1),
    Sketcher.Constraint("Tangent", 35, 2, 36, 1),
    Sketcher.Constraint("Tangent", 36, 2, 37, 1),
    Sketcher.Constraint("Tangent", 37, 2, 38, 1),
    Sketcher.Constraint("Tangent", 38, 2, 39, 1),
    Sketcher.Constraint("Tangent", 39, 2, 32, 1),
    Sketcher.Constraint("Tangent", 40, 2, 41, 1),
    Sketcher.Constraint("Tangent", 41, 2, 42, 1),
    Sketcher.Constraint("Tangent", 42, 2, 43, 1),
    Sketcher.Constraint("Tangent", 43, 2, 44, 1),
    Sketcher.Constraint("Tangent", 44, 2, 45, 1),
    Sketcher.Constraint("Tangent", 45, 2, 46, 1),
    Sketcher.Constraint("Tangent", 46, 2, 47, 1),
    Sketcher.Constraint("Tangent", 47, 2, 40, 1),
    Sketcher.Constraint("Tangent", 48, 2, 49, 1),
    Sketcher.Constraint("Tangent", 49, 2, 50, 1),
    Sketcher.Constraint("Tangent", 50, 2, 51, 1),
    Sketcher.Constraint("Tangent", 51, 2, 52, 1),
    Sketcher.Constraint("Tangent", 52, 2, 53, 1),
    Sketcher.Constraint("Tangent", 53, 2, 54, 1),
    Sketcher.Constraint("Tangent", 54, 2, 55, 1),
    Sketcher.Constraint("Tangent", 55, 2, 48, 1),
    Sketcher.Constraint("Tangent", 56, 2, 57, 1),
    Sketcher.Constraint("Tangent", 57, 2, 58, 1),
    Sketcher.Constraint("Coincident", 58, 2, 59, 1),
    Sketcher.Constraint("Tangent", 59, 2, 60, 1),
    Sketcher.Constraint("Tangent", 60, 2, 61, 1),
    Sketcher.Constraint("Tangent", 61, 2, 62, 1),
    Sketcher.Constraint("Tangent", 62, 2, 63, 1),
    Sketcher.Constraint("Tangent", 63, 2, 64, 2),
    Sketcher.Constraint("Tangent", 64, 1, 65, 1),
    Sketcher.Constraint("Tangent", 65, 2, 66, 1),
    Sketcher.Constraint("Tangent", 66, 2, 67, 1),
    Sketcher.Constraint("Tangent", 67, 2, 68, 1),
    Sketcher.Constraint("Tangent", 68, 2, 69, 1),
    Sketcher.Constraint("Tangent", 69, 2, 70, 1),
    Sketcher.Constraint("Tangent", 70, 2, 56, 1),
    Sketcher.Constraint("Vertical", 0),
    Sketcher.Constraint("Horizontal", 2),
    Sketcher.Constraint("Vertical", 4),
    Sketcher.Constraint("Horizontal", 6),
    Sketcher.Constraint("Horizontal", 8),
    Sketcher.Constraint("Vertical", 10),
    Sketcher.Constraint("Horizontal", 12),
    Sketcher.Constraint("Vertical", 14),
    Sketcher.Constraint("Horizontal", 16),
    Sketcher.Constraint("Vertical", 18),
    Sketcher.Constraint("Horizontal", 20),
    Sketcher.Constraint("Vertical", 22),
    Sketcher.Constraint("Horizontal", 24),
    Sketcher.Constraint("Vertical", 26),
    Sketcher.Constraint("Horizontal", 28),
    Sketcher.Constraint("Vertical", 30),
    Sketcher.Constraint("Horizontal", 32),
    Sketcher.Constraint("Vertical", 34),
    Sketcher.Constraint("Horizontal", 36),
    Sketcher.Constraint("Vertical", 38),
    Sketcher.Constraint("Horizontal", 40),
    Sketcher.Constraint("Vertical", 42),
    Sketcher.Constraint("Horizontal", 44),
    Sketcher.Constraint("Vertical", 46),
    Sketcher.Constraint("Horizontal", 48),
    Sketcher.Constraint("Vertical", 50),
    Sketcher.Constraint("Horizontal", 52),
    Sketcher.Constraint("Vertical", 54),
    Sketcher.Constraint("Horizontal", 56),
    Sketcher.Constraint("Vertical", 58),
    Sketcher.Constraint("Horizontal", 59),
    Sketcher.Constraint("Vertical", 61),
    Sketcher.Constraint("Horizontal", 63),
    Sketcher.Constraint("Vertical", 65),
    Sketcher.Constraint("Horizontal", 67),
    Sketcher.Constraint("Vertical", 69),
    Sketcher.Constraint("Equal", 1, 3),
    Sketcher.Constraint("Equal", 3, 5),
    Sketcher.Constraint("Equal", 5, 7),
    Sketcher.Constraint("Equal", 7, 9),
    Sketcher.Constraint("Equal", 9, 11),
    Sketcher.Constraint("Equal", 11, 13),
    Sketcher.Constraint("Equal", 13, 15),
    Sketcher.Constraint("Equal", 3, 17),
    Sketcher.Constraint("Equal", 17, 19),
    Sketcher.Constraint("Equal", 19, 21),
    Sketcher.Constraint("Equal", 21, 23),
    Sketcher.Constraint("Equal", 23, 25),
    Sketcher.Constraint("Equal", 25, 27),
    Sketcher.Constraint("Equal", 27, 29),
    Sketcher.Constraint("Equal", 29, 31),
    Sketcher.Constraint("Equal", 31, 33),
    Sketcher.Constraint("Equal", 33, 35),
    Sketcher.Constraint("Equal", 35, 37),
    Sketcher.Constraint("Equal", 37, 39),
    Sketcher.Constraint("Equal", 39, 41),
    Sketcher.Constraint("Equal", 41, 43),
    Sketcher.Constraint("Equal", 43, 45),
    Sketcher.Constraint("Equal", 45, 47),
    Sketcher.Constraint("Equal", 47, 49),
    Sketcher.Constraint("Equal", 49, 51),
    Sketcher.Constraint("Equal", 51, 53),
    Sketcher.Constraint("Equal", 53, 55),
    Sketcher.Constraint("Equal", 20, 24),
    Sketcher.Constraint("Equal", 28, 32),
    Sketcher.Constraint("Equal", 36, 40),
    Sketcher.Constraint("Equal", 44, 48),
    Sketcher.Constraint("Equal", 22, 26),
    Sketcher.Constraint("Equal", 30, 34),
    Sketcher.Constraint("Equal", 38, 42),
    Sketcher.Constraint("Equal", 46, 50),
    Sketcher.Constraint("Radius", 1, Q("2 mm")),
    Sketcher.Constraint("DistanceX", 16, 1, 16, 2, Q("15 mm")),
    Sketcher.Constraint("DistanceY", 18, 1, 18, 2, Q("7 mm")),
    Sketcher.Constraint("Radius", 60, Q("1.531049 mm")),
    Sketcher.Constraint("Radius", 68, Q("2.152812 mm")),
    Sketcher.Constraint("DistanceY", 0, 2, 0, 1, Q("29.358501 mm")),
    Sketcher.Constraint("Radius", 57, Q("0.867697 mm")),
    Sketcher.Constraint("Radius", 62, Q("1.002874 mm")),
    Sketcher.Constraint("Radius", 64, Q("2.633362 mm")),
    Sketcher.Constraint("Radius", 66, Q("1.461055 mm")),
    Sketcher.Constraint("Radius", 70, Q("2.061775 mm")),
    Sketcher.Constraint("DistanceX", 8, 1, 8, 2, Q("5.305491 mm")),
    Sketcher.Constraint("DistanceX", 59, 2, 59, 1, Q("4.952951 mm")),
    Sketcher.Constraint("DistanceX", 63, 1, 63, 2, Q("22.150232 mm")),
    Sketcher.Constraint("DistanceX", 67, 1, 67, 2, Q("4.954391 mm")),
    Sketcher.Constraint("DistanceY", 58, 2, 58, 1, Q("0.770661 mm")),
    Sketcher.Constraint("DistanceY", 61, 2, 61, 1, Q("2.609979 mm")),
    Sketcher.Constraint("DistanceY", 65, 2, 65, 1, Q("0.795338 mm")),
    Sketcher.Constraint("DistanceX", 2, 1, 2, 2, Q("51.753864 mm")),
    Sketcher.Constraint("DistanceY", 10, 1, 10, 2, Q("4.888832 mm")),
    Sketcher.Constraint("DistanceX", -1, 1, 5, 3, Q("25.400849 mm")),
    Sketcher.Constraint("DistanceY", -1, 1, 11, 3, Q("11.809341 mm")),
    Sketcher.Constraint("DistanceX", 17, 3, -1, 1, Q("10.740761 mm")),
    Sketcher.Constraint("DistanceY", -1, 1, 17, 3, Q("18.073959 mm")),
    Sketcher.Constraint("DistanceX", -1, 1, 25, 3, Q("30.066151 mm")),
    Sketcher.Constraint("DistanceY", -1, 1, 25, 3, Q("10.146562 mm")),
    Sketcher.Constraint("DistanceX", 35, 3, -1, 1, Q("31.494811 mm")),
    Sketcher.Constraint("DistanceY", 43, 3, -1, 1, Q("24.485831 mm")),
    Sketcher.Constraint("DistanceX", -1, 1, 49, 3, Q("9.899878 mm")),
    Sketcher.Constraint("DistanceX", 60, 3, -1, 1, Q("53.166811 mm")),
    Sketcher.Constraint("DistanceY", -1, 1, 62, 3, Q("1.666978 mm")),
    Sketcher.Constraint("DistanceY", 1, 3, -1, 1, Q("35.961915 mm")),
    Sketcher.Constraint("DistanceX", -1, 1, 9, 3, Q("6.211626 mm")),
    Sketcher.Constraint("DistanceY", -1, 1, 33, 3, Q("10.270184 mm")),
    Sketcher.Constraint("DistanceX", -1, 1, 41, 3, Q("46.451974 mm")),
    Sketcher.Constraint("DistanceY", -1, 1, 49, 3, Q("17.922744 mm")),
])
pocket1 = body.newObject("PartDesign::Pocket", "Pocket")
pocket1.Profile = sketch2
pocket1.Length = 2

doc.recompute()
